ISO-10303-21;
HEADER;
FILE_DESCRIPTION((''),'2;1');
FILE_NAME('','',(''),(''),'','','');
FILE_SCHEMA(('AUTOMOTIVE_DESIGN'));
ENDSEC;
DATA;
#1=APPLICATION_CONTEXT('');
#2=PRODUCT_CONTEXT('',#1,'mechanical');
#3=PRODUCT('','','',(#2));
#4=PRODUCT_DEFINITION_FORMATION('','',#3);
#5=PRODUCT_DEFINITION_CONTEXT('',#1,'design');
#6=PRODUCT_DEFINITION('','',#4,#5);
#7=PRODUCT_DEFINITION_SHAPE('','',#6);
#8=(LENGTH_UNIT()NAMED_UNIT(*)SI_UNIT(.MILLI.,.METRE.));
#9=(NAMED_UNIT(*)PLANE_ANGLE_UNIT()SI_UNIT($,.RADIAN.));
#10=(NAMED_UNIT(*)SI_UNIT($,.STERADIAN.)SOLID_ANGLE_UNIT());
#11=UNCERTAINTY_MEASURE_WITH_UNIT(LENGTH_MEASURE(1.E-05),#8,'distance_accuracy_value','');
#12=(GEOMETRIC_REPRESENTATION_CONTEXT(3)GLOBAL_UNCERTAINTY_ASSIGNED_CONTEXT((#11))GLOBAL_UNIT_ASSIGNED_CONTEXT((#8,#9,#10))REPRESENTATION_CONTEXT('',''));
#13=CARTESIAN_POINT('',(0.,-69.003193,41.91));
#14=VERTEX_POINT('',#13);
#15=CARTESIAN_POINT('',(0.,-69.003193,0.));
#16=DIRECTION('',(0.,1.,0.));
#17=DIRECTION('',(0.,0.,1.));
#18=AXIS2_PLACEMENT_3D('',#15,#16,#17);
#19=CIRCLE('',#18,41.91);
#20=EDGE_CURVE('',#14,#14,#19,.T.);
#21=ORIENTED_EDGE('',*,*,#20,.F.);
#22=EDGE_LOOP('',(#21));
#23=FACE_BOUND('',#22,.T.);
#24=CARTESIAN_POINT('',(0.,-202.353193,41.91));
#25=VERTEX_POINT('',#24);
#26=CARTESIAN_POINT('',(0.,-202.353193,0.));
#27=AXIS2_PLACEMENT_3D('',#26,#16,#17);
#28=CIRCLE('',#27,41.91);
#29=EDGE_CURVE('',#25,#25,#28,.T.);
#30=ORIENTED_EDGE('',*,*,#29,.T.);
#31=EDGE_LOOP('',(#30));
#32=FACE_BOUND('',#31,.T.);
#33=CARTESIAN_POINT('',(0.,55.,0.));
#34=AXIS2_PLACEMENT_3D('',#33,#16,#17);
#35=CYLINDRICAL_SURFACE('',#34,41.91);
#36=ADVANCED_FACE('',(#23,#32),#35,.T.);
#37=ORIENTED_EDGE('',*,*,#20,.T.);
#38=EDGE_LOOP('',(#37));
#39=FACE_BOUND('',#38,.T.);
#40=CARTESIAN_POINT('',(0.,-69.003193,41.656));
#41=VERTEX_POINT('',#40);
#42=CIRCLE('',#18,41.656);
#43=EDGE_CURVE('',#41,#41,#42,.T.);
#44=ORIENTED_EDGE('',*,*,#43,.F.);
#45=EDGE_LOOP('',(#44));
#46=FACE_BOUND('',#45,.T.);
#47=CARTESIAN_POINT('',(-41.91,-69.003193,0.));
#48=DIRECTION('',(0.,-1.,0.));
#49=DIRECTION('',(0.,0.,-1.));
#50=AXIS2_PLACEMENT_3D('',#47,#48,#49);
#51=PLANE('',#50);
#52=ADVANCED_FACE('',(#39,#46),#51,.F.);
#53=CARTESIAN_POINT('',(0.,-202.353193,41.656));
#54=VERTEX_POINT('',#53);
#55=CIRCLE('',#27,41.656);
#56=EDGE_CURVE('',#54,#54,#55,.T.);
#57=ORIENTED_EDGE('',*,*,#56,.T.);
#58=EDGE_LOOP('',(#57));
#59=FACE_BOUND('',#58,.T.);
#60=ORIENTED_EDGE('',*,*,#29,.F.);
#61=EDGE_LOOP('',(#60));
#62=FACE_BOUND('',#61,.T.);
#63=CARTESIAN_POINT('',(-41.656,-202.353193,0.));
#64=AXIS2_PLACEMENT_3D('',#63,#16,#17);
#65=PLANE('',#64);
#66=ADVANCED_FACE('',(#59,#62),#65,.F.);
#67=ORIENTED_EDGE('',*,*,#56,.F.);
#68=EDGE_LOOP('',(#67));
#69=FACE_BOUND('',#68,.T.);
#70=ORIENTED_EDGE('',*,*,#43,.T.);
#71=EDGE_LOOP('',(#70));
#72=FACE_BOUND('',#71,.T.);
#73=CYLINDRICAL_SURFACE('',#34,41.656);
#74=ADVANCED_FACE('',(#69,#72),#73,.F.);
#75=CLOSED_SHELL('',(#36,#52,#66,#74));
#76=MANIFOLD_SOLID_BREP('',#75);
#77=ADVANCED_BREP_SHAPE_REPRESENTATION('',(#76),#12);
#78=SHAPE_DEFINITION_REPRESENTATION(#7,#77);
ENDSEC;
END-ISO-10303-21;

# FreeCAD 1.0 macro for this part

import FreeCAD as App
import Part
import Sketcher
from FreeCAD import Vector
Q = App.Units.Quantity

doc = App.newDocument("Part")
body = doc.addObject("PartDesign::Body", "Body")

sketch1 = body.newObject("Sketcher::SketchObject", "Sketch")
sketch1.AttachmentSupport = (doc.getObject("XY_Plane"), [""])
sketch1.MapMode = "FlatFace"
sketch1.addGeometry([
    Part.LineSegment(Vector(-41.91, -69, 0), Vector(-41.91, -202.35, 0)),
    Part.LineSegment(Vector(-41.91, -202.35, 0), Vector(-41.66, -202.35, 0)),
    Part.LineSegment(Vector(-41.66, -202.35, 0), Vector(-41.66, -69, 0)),
    Part.LineSegment(Vector(-41.66, -69, 0), Vector(-41.91, -69, 0)),
], False)
sketch1.addConstraint([
    Sketcher.Constraint("Coincident", 0, 2, 1, 1),
    Sketcher.Constraint("Coincident", 1, 2, 2, 1),
    Sketcher.Constraint("Coincident", 2, 2, 3, 1),
    Sketcher.Constraint("Coincident", 3, 2, 0, 1),
    Sketcher.Constraint("Vertical", 0),
    Sketcher.Constraint("Horizontal", 1),
    Sketcher.Constraint("Vertical", 2),
    Sketcher.Constraint("Horizontal", 3),
    Sketcher.Constraint("DistanceX", 1, 1, 1, 2, Q("0.01 in")),
    Sketcher.Constraint("DistanceY", 0, 2, 0, 1, Q("5.25 in")),
    Sketcher.Constraint("DistanceX", 0, 2, -1, 1, Q("1.65 in")),
    Sketcher.Constraint("DistanceY", 0, 2, -1, 1, 202.353193),
])
revolution = body.newObject("PartDesign::Revolution", "Revolution")
revolution.Profile = sketch1
revolution.ReferenceAxis = (sketch1, ["V_Axis"])
revolution.Angle = 360

doc.recompute()
